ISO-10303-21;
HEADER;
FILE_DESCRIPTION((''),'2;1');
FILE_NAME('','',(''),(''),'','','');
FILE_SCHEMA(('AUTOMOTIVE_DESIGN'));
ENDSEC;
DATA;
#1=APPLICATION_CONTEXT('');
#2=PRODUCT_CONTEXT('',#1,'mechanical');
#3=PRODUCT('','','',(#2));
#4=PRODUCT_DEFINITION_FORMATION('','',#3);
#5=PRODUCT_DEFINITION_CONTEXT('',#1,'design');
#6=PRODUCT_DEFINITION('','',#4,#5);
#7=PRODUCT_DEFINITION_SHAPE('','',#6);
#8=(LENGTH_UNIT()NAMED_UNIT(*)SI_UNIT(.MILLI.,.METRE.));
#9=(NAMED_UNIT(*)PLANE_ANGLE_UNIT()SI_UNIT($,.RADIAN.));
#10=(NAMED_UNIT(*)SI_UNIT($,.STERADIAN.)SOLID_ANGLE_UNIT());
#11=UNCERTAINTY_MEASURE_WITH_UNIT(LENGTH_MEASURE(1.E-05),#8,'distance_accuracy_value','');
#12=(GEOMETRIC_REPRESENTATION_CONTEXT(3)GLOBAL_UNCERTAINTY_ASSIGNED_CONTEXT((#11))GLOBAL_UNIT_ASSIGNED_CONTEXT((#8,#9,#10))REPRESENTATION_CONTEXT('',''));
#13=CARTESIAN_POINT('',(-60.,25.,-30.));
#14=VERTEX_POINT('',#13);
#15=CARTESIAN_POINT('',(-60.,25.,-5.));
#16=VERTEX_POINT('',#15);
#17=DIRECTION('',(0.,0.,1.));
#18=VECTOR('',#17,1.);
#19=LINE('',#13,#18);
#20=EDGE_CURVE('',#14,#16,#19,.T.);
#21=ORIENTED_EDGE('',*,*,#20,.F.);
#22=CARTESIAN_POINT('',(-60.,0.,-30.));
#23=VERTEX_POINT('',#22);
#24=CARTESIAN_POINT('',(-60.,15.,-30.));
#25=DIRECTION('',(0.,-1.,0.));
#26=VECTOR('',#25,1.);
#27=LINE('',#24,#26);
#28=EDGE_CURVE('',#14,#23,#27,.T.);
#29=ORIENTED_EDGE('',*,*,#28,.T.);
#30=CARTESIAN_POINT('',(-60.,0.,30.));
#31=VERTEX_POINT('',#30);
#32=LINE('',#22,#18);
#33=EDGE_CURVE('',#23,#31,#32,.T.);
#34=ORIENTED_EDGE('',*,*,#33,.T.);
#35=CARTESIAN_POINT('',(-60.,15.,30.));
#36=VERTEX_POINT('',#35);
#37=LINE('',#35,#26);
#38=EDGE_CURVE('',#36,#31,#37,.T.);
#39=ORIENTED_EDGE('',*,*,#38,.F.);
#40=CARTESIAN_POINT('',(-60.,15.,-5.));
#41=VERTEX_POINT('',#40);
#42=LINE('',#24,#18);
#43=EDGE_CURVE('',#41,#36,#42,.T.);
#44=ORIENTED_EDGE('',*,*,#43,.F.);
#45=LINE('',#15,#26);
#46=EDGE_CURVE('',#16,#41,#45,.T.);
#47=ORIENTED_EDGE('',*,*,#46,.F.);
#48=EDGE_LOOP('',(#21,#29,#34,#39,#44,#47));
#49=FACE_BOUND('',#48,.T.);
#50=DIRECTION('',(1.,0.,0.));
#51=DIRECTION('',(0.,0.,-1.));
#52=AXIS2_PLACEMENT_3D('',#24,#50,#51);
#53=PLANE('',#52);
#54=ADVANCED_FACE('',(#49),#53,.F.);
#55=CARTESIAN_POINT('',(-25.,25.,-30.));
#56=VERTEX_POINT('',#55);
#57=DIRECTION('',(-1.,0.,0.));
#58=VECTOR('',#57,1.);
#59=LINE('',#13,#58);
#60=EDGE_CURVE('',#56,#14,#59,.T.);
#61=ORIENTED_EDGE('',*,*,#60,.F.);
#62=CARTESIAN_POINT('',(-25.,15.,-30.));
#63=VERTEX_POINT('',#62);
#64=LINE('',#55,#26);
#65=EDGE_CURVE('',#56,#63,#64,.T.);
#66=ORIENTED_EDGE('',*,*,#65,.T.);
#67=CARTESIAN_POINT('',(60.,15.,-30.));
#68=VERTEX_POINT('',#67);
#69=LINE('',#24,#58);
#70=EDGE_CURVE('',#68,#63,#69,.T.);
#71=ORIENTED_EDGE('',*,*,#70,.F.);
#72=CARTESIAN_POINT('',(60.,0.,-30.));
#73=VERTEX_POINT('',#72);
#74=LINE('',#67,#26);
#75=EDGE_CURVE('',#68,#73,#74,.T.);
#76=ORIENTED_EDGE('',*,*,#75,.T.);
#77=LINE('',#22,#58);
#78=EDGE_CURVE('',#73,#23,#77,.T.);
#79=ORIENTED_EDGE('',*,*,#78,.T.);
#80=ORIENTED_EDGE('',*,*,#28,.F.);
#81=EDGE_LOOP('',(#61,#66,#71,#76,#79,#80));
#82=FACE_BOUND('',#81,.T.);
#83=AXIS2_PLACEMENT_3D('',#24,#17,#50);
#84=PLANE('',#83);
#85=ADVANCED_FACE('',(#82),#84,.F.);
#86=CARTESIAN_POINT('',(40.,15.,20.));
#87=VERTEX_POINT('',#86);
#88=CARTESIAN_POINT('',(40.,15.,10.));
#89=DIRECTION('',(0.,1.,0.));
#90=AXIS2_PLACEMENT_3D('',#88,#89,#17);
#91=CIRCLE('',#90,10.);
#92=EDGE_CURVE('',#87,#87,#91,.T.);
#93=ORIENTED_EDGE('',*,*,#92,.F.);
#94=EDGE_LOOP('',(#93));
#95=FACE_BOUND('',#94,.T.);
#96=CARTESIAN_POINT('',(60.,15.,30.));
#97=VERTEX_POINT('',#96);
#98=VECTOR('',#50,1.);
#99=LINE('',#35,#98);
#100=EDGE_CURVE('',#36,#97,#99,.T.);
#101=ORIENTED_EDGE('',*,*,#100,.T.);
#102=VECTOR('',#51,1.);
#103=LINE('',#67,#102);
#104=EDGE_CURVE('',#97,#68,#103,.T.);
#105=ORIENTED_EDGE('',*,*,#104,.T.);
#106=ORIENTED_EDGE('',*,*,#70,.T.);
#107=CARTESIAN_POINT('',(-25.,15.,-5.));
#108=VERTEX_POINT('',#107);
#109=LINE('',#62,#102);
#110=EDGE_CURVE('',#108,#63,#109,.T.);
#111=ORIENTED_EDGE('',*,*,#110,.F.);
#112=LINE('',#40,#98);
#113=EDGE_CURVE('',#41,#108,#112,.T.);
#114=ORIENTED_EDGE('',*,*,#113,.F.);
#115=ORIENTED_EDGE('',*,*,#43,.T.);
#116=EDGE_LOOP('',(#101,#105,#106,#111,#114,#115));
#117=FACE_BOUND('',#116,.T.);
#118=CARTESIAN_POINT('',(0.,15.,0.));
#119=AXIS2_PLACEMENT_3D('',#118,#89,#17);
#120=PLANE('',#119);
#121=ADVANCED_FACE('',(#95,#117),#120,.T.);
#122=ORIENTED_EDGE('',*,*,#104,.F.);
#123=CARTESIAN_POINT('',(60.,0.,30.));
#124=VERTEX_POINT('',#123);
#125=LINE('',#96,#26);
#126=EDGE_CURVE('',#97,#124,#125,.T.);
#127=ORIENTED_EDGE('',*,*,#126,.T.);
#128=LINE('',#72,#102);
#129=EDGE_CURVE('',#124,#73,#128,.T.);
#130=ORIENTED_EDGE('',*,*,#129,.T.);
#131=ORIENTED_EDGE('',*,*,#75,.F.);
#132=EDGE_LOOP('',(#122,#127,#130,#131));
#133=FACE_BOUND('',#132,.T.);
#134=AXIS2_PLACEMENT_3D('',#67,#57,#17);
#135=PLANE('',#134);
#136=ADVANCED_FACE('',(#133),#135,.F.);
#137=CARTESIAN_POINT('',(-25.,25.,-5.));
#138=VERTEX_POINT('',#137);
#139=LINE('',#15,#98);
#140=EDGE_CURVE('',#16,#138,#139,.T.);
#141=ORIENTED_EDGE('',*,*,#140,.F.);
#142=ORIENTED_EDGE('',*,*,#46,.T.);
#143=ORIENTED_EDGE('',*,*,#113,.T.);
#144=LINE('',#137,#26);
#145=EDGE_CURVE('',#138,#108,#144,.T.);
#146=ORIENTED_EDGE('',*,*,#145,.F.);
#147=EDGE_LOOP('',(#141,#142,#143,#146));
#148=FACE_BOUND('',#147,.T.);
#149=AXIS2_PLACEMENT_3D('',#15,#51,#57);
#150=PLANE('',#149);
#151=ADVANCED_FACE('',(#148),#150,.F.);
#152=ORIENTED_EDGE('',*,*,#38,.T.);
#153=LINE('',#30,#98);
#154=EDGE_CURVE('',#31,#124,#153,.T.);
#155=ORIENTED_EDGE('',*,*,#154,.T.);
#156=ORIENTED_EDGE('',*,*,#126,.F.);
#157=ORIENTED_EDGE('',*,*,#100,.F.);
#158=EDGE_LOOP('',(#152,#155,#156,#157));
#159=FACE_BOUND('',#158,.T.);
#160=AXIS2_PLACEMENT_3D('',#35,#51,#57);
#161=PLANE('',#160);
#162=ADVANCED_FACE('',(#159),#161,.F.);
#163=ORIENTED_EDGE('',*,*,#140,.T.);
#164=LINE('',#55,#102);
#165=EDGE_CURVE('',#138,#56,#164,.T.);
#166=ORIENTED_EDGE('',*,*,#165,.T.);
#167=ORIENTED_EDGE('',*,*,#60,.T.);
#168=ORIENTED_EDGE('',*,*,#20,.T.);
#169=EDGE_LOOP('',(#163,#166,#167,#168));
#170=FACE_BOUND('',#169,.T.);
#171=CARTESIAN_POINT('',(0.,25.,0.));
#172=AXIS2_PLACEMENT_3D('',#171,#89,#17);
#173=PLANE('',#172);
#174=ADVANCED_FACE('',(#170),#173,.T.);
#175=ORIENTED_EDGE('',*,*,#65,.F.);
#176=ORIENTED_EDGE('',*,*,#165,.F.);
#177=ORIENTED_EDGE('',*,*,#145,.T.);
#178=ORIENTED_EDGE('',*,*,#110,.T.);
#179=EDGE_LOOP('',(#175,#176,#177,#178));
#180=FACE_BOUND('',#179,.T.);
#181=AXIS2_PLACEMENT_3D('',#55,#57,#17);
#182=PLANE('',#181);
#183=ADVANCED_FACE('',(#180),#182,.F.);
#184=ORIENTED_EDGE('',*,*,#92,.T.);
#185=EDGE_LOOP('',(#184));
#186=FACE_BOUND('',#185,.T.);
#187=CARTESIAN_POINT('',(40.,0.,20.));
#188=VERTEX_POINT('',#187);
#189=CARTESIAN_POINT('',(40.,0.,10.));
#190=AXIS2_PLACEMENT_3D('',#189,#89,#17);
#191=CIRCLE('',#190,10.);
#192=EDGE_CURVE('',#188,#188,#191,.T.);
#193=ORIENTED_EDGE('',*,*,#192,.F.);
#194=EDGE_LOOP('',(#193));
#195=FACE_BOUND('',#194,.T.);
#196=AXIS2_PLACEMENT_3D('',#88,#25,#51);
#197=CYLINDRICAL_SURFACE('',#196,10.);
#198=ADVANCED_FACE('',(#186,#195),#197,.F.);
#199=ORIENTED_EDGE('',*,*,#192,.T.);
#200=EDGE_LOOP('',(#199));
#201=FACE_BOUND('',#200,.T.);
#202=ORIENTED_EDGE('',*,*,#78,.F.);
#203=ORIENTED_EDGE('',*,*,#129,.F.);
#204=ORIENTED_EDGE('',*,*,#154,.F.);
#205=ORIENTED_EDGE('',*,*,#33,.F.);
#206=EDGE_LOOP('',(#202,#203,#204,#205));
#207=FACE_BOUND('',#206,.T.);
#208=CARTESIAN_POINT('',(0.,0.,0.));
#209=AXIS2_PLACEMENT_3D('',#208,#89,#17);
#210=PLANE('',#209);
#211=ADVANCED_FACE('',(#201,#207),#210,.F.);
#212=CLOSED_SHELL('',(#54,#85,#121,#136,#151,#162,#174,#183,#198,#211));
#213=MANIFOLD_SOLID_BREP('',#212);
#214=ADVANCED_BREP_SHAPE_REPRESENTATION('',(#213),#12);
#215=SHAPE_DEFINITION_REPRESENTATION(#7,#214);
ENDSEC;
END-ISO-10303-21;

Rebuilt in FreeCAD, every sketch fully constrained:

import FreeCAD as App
import Part
import Sketcher
Q = App.Units.Quantity

doc = App.newDocument("Part")
body = doc.addObject("PartDesign::Body", "Body")

# Sketch on XZ plane
sketch1 = doc.addObject("Sketcher::SketchObject", "Sketch")
body.addObject(sketch1)
sketch1.AttachmentSupport = (doc.XZ_Plane, [""])
sketch1.MapMode = "FlatFace"
sketch1.addGeometry(Part.LineSegment(App.Vector(-60, -30, 0), App.Vector(-60, 30, 0)), False)
sketch1.addGeometry(Part.LineSegment(App.Vector(-60, 30, 0), App.Vector(60, 30, 0)), False)
sketch1.addGeometry(Part.LineSegment(App.Vector(60, 30, 0), App.Vector(60, -30, 0)), False)
sketch1.addGeometry(Part.LineSegment(App.Vector(60, -30, 0), App.Vector(-60, -30, 0)), False)
sketch1.addGeometry(Part.Circle(App.Vector(40, 10, 0), App.Vector(0, 0, 1), 10), False)
sketch1.addConstraint(Sketcher.Constraint("Coincident", 0, 2, 1, 1))
sketch1.addConstraint(Sketcher.Constraint("Coincident", 1, 2, 2, 1))
sketch1.addConstraint(Sketcher.Constraint("Coincident", 2, 2, 3, 1))
sketch1.addConstraint(Sketcher.Constraint("Coincident", 3, 2, 0, 1))
sketch1.addConstraint(Sketcher.Constraint("Vertical", 0))
sketch1.addConstraint(Sketcher.Constraint("Horizontal", 1))
sketch1.addConstraint(Sketcher.Constraint("Vertical", 2))
sketch1.addConstraint(Sketcher.Constraint("Horizontal", 3))
sketch1.addConstraint(Sketcher.Constraint("Symmetric", 0, 2, 2, 2, -1, 1))
sketch1.addConstraint(Sketcher.Constraint("Diameter", 4, Q("20 mm")))
sketch1.addConstraint(Sketcher.Constraint("DistanceX", 1, 1, 1, 2, Q("120 mm")))
sketch1.addConstraint(Sketcher.Constraint("DistanceY", 0, 1, 0, 2, Q("60 mm")))
sketch1.addConstraint(Sketcher.Constraint("DistanceX", -1, 1, 4, 3, Q("40 mm")))
sketch1.addConstraint(Sketcher.Constraint("DistanceY", -1, 1, 4, 3, Q("10 mm")))
pad1 = doc.addObject("PartDesign::Pad", "Pad")
body.addObject(pad1)
pad1.Profile = sketch1
pad1.Length = 15
pad1.Reversed = True

# Sketch on XZ plane
sketch2 = doc.addObject("Sketcher::SketchObject", "Sketch001")
body.addObject(sketch2)
sketch2.AttachmentSupport = (doc.XZ_Plane, [""])
sketch2.MapMode = "FlatFace"
sketch2.AttachmentOffset = App.Placement(App.Vector(0, 0, -15), App.Rotation())
sketch2.addGeometry(Part.LineSegment(App.Vector(-60, -30, 0), App.Vector(-60, -5, 0)), False)
sketch2.addGeometry(Part.LineSegment(App.Vector(-60, -5, 0), App.Vector(-25, -5, 0)), False)
sketch2.addGeometry(Part.LineSegment(App.Vector(-25, -5, 0), App.Vector(-25, -30, 0)), False)
sketch2.addGeometry(Part.LineSegment(App.Vector(-25, -30, 0), App.Vector(-60, -30, 0)), False)
sketch2.addConstraint(Sketcher.Constraint("Coincident", 0, 2, 1, 1))
sketch2.addConstraint(Sketcher.Constraint("Coincident", 1, 2, 2, 1))
sketch2.addConstraint(Sketcher.Constraint("Coincident", 2, 2, 3, 1))
sketch2.addConstraint(Sketcher.Constraint("Coincident", 3, 2, 0, 1))
sketch2.addConstraint(Sketcher.Constraint("Vertical", 0))
sketch2.addConstraint(Sketcher.Constraint("Horizontal", 1))
sketch2.addConstraint(Sketcher.Constraint("Vertical", 2))
sketch2.addConstraint(Sketcher.Constraint("Horizontal", 3))
sketch2.addConstraint(Sketcher.Constraint("DistanceX", 1, 1, 1, 2, Q("35 mm")))
sketch2.addConstraint(Sketcher.Constraint("DistanceY", 0, 1, 0, 2, Q("25 mm")))
sketch2.addConstraint(Sketcher.Constraint("DistanceX", 0, 2, -1, 1, Q("60 mm")))
sketch2.addConstraint(Sketcher.Constraint("DistanceY", 0, 2, -1, 1, Q("5 mm")))
pad2 = doc.addObject("PartDesign::Pad", "Pad001")
body.addObject(pad2)
pad2.Profile = sketch2
pad2.Length = 10
pad2.Reversed = True

doc.recompute()
